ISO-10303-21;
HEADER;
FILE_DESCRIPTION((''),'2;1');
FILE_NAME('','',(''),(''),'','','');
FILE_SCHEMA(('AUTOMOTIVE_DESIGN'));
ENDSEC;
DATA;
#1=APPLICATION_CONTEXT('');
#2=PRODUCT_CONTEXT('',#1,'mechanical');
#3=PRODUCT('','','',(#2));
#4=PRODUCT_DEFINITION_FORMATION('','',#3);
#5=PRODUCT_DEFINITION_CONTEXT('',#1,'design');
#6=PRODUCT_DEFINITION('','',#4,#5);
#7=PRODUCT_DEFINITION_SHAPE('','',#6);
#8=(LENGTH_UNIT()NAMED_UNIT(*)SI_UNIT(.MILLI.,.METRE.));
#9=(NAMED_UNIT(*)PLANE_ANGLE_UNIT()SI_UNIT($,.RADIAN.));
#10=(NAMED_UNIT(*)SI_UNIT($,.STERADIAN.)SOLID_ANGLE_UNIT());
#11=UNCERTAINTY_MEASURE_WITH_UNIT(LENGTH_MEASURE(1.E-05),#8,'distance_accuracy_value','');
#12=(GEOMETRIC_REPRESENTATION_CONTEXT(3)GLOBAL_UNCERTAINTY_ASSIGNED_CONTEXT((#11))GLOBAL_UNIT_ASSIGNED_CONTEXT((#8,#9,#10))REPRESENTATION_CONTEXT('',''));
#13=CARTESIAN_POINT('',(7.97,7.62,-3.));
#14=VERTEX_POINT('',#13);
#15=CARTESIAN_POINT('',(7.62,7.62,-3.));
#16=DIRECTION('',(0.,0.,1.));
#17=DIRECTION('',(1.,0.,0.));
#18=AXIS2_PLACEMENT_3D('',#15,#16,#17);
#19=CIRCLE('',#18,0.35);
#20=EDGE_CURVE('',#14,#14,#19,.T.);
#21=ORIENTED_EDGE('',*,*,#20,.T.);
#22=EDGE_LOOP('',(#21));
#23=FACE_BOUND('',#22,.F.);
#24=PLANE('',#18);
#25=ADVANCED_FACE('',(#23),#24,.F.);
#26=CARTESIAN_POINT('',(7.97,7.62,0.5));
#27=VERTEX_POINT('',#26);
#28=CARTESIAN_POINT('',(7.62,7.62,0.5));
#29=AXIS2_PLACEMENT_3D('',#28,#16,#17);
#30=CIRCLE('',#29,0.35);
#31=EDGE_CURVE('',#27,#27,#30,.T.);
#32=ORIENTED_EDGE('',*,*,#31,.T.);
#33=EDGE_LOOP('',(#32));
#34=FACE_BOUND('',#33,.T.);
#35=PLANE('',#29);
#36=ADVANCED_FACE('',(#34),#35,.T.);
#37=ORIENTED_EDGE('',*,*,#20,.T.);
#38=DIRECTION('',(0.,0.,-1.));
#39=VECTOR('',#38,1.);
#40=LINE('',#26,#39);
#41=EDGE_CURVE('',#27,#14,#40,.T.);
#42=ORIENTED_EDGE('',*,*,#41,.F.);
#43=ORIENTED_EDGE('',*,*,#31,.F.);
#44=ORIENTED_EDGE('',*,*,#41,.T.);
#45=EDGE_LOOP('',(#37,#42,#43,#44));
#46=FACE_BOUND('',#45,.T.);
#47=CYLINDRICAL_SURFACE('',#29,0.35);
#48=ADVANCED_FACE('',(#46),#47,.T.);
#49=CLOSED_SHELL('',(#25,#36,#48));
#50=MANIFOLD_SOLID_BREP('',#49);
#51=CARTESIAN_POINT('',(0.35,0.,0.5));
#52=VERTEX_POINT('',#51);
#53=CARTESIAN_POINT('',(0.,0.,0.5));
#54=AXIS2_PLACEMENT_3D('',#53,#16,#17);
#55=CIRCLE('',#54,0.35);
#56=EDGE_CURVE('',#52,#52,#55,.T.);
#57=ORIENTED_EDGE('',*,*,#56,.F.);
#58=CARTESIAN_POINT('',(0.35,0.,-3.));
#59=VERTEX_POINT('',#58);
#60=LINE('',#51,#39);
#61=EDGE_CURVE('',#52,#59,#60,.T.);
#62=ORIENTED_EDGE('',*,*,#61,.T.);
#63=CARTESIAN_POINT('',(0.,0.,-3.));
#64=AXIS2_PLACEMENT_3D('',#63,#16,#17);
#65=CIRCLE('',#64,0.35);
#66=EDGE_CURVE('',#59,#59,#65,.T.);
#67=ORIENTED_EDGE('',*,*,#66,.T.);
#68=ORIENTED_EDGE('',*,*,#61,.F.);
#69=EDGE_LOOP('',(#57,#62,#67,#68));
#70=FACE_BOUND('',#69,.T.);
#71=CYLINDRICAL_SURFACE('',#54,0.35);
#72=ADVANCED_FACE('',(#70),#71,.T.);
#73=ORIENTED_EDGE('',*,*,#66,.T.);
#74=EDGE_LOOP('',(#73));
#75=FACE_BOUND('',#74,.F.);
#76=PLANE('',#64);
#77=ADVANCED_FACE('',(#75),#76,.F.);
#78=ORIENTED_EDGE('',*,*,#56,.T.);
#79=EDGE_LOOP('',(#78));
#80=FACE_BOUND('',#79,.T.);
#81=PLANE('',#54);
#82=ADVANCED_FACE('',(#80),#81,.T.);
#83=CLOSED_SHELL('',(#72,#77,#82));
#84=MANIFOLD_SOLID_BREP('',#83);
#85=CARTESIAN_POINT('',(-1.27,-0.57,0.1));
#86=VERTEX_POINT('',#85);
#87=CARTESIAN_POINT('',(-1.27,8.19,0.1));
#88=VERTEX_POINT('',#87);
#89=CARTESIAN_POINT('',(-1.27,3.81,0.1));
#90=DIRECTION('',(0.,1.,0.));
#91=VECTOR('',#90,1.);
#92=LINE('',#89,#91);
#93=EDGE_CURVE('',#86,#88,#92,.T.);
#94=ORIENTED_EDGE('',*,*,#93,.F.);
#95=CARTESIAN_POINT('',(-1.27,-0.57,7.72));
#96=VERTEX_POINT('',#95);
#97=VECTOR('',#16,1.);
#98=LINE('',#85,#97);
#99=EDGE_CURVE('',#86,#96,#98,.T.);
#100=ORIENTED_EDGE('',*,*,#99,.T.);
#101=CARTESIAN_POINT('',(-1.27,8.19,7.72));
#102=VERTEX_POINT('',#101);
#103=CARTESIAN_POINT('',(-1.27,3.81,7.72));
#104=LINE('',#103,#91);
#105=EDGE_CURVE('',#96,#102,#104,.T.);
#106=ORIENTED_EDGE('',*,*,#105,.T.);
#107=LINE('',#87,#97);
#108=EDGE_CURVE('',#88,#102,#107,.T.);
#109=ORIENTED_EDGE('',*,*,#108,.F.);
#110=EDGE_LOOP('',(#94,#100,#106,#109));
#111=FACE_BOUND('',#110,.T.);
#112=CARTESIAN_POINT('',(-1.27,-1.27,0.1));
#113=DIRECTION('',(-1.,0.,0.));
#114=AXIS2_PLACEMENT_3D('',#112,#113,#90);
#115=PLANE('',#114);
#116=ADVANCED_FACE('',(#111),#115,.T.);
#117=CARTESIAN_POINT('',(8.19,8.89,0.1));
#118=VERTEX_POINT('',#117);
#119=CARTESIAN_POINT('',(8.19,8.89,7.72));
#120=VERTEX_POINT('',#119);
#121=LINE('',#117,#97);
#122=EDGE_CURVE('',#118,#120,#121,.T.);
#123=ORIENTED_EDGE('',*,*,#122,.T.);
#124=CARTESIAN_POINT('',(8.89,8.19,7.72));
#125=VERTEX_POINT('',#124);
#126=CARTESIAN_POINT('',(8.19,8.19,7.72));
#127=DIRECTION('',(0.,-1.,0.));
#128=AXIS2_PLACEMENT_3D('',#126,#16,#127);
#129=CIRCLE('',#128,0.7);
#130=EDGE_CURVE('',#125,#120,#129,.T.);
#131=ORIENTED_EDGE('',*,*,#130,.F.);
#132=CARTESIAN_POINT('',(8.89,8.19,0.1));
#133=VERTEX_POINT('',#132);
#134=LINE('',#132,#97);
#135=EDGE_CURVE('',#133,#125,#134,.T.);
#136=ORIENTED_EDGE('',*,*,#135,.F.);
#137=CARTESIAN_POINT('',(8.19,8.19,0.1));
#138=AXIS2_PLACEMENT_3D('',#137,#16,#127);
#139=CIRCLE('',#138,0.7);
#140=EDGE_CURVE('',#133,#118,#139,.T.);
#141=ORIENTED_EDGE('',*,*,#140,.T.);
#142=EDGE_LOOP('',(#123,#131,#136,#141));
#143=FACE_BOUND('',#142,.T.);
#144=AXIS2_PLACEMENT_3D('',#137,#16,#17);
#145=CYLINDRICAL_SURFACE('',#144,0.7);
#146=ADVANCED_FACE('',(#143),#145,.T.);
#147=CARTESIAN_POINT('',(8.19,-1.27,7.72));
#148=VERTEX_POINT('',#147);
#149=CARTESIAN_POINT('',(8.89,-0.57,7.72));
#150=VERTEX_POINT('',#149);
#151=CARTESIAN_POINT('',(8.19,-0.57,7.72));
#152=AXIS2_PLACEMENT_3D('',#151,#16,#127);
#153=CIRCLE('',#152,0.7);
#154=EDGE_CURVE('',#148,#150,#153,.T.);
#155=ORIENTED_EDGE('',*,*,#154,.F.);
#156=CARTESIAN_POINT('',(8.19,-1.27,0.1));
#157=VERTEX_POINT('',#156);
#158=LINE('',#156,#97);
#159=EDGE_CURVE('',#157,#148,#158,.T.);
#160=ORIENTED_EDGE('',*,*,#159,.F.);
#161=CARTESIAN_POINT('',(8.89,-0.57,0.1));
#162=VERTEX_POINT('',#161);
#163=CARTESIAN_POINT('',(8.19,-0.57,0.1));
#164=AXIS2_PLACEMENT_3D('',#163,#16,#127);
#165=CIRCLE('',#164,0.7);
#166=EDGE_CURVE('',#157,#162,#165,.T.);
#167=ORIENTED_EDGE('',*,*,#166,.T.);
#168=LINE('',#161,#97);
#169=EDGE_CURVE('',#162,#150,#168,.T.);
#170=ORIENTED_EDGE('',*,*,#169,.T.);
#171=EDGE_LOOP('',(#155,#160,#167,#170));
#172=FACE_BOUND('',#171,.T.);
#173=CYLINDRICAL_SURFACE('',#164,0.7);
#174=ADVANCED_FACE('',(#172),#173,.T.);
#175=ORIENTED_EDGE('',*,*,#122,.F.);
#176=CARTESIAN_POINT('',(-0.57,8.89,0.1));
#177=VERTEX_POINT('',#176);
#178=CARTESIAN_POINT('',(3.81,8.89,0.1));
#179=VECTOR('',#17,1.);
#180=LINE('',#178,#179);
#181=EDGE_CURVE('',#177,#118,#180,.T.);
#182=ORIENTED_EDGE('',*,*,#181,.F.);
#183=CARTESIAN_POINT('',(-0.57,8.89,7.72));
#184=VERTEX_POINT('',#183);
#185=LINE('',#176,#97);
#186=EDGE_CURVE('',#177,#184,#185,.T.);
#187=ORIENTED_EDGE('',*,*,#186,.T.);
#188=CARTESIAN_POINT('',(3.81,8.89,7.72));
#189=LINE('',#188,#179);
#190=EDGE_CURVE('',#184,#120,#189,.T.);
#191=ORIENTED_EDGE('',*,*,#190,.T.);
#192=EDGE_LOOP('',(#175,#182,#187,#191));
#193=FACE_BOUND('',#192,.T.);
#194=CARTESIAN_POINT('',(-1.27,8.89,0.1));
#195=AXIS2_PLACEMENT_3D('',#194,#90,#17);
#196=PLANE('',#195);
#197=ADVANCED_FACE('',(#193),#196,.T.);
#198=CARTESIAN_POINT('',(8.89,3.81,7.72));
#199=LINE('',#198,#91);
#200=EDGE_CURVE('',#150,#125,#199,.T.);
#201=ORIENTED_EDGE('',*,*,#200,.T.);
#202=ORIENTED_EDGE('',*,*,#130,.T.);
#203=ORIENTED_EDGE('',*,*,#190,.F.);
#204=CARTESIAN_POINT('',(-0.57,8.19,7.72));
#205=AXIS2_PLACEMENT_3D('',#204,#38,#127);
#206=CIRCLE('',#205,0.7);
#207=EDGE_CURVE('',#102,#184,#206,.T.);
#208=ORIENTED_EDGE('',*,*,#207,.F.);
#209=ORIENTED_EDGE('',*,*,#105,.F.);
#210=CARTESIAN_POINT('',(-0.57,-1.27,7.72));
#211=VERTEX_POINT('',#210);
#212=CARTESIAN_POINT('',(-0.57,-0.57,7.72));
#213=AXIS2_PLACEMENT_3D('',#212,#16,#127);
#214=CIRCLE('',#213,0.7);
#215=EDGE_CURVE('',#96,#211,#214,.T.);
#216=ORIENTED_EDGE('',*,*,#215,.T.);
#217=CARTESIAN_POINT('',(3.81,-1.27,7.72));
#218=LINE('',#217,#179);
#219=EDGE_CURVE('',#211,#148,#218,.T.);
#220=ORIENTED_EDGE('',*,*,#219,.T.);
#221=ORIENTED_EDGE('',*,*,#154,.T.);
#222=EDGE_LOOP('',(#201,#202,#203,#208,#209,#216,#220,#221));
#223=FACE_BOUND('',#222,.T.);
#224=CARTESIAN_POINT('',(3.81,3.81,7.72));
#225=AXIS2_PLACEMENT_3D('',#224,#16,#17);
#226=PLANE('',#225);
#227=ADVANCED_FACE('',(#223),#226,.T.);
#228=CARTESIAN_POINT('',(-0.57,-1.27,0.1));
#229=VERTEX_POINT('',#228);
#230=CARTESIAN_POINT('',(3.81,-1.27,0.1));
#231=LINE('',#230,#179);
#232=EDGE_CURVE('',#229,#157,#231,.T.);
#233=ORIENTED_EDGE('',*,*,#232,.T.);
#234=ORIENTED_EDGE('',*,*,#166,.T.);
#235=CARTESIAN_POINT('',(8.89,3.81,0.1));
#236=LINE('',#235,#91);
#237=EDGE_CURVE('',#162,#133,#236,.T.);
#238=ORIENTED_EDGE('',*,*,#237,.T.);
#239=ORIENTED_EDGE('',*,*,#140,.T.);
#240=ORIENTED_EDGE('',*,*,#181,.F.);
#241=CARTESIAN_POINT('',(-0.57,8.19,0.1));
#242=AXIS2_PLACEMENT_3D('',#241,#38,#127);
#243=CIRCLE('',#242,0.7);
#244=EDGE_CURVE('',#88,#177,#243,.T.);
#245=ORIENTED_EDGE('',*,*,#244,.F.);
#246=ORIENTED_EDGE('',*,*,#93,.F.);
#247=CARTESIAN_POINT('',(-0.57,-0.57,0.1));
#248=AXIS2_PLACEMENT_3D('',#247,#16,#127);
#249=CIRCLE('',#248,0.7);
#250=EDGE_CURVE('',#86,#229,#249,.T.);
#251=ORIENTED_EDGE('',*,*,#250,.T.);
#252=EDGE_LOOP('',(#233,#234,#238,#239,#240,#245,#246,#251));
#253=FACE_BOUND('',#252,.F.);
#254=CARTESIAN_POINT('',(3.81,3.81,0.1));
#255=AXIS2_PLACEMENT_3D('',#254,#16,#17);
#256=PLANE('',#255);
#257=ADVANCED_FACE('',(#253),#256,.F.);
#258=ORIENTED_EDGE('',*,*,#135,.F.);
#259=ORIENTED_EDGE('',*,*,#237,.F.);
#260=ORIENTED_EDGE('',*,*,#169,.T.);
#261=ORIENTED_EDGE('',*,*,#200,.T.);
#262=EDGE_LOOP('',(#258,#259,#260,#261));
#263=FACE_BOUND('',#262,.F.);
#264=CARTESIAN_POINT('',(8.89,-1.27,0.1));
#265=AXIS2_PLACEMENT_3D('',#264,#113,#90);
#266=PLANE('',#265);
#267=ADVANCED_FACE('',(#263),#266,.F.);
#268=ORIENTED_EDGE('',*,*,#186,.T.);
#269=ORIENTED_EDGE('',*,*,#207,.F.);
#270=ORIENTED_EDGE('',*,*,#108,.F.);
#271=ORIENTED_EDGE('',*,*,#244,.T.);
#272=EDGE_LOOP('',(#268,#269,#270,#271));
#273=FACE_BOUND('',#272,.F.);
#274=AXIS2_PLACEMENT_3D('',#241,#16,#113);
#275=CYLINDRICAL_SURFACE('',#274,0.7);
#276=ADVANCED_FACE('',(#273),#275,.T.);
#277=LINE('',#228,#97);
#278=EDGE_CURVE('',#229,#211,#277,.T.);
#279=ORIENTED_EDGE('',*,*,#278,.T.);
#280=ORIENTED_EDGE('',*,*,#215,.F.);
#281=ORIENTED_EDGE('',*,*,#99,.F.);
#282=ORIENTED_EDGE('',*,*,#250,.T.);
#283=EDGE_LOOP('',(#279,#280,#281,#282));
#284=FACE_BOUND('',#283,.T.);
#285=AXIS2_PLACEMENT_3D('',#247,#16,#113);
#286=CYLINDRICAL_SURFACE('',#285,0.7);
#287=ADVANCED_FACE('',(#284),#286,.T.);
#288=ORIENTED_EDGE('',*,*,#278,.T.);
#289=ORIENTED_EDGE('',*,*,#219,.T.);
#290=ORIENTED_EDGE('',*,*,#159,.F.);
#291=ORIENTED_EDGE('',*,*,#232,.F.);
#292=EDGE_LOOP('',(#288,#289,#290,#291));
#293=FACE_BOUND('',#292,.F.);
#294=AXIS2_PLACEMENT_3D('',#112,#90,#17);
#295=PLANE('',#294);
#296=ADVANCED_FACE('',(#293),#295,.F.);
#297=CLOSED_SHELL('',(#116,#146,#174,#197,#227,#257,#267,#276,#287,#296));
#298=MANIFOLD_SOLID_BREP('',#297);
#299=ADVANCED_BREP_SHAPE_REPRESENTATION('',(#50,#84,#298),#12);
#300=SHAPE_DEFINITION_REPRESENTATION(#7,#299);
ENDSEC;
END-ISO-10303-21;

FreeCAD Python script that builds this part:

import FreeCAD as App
import Part
import Sketcher
from FreeCAD import Vector
Q = App.Units.Quantity


def edges_at(feature, points):
    """Names of the edges that pass closest to the given points."""
    edges = feature.Shape.Edges
    near = lambda p: min(range(len(edges)), key=lambda i: edges[i].distToShape(Part.Vertex(*p))[0])
    return sorted({f"Edge{near(p) + 1}" for p in points})

doc = App.newDocument("Part")
body = doc.addObject("PartDesign::Body", "Body")
body.AllowCompound = True

sketch1 = doc.addObject("Sketcher::SketchObject", "Sketch")
body.addObject(sketch1)
sketch1.AttachmentSupport = (doc.XY_Plane, [""])
sketch1.MapMode = "FlatFace"
sketch1.AttachmentOffset = App.Placement(Vector(0, 0, 0.5), App.Rotation())
sketch1.addGeometry([
    Part.Circle(Vector(0, 0, 0), Vector(0, 0, 1), 0.35),
    Part.Circle(Vector(7.62, 7.62, 0), Vector(0, 0, 1), 0.35),
], False)
sketch1.addConstraint([
    Sketcher.Constraint("Coincident", 0, 3, -1, 1),
    Sketcher.Constraint("Equal", 0, 1),
    Sketcher.Constraint("Diameter", 0, Q("0.7 mm")),
    Sketcher.Constraint("DistanceX", -1, 1, 1, 3, Q("7.62 mm")),
    Sketcher.Constraint("DistanceY", -1, 1, 1, 3, Q("7.62 mm")),
])
pad1 = doc.addObject("PartDesign::Pad", "Pad")
body.addObject(pad1)
pad1.Profile = sketch1
pad1.Length = 3.5
pad1.Reversed = True
body2 = doc.addObject("PartDesign::Body", "Body001")

sketch2 = doc.addObject("Sketcher::SketchObject", "Sketch001")
body2.addObject(sketch2)
sketch2.AttachmentSupport = (doc.getObject("XY_Plane001"), [""])
sketch2.MapMode = "FlatFace"
sketch2.AttachmentOffset = App.Placement(Vector(0, 0, 0.1), App.Rotation())
sketch2.addGeometry([
    Part.LineSegment(Vector(-1, 9, 0), Vector(-1, -1, 0)),
    Part.LineSegment(Vector(-1, -1, 0), Vector(9, -1, 0)),
    Part.LineSegment(Vector(9, -1, 0), Vector(9, 9, 0)),
    Part.LineSegment(Vector(9, 9, 0), Vector(-1, 9, 0)),
], False)
sketch2.addConstraint([
    Sketcher.Constraint("Coincident", 0, 2, 1, 1),
    Sketcher.Constraint("Coincident", 1, 2, 2, 1),
    Sketcher.Constraint("Coincident", 2, 2, 3, 1),
    Sketcher.Constraint("Coincident", 3, 2, 0, 1),
    Sketcher.Constraint("Vertical", 0),
    Sketcher.Constraint("Horizontal", 1),
    Sketcher.Constraint("Vertical", 2),
    Sketcher.Constraint("Horizontal", 3),
    Sketcher.Constraint("Equal", 3, 0),
    Sketcher.Constraint("DistanceX", 1, 1, 1, 2, Q("10.16 mm")),
    Sketcher.Constraint("DistanceX", 0, 2, -1, 1, Q("1.27 mm")),
    Sketcher.Constraint("DistanceY", 0, 2, -1, 1, Q("1.27 mm")),
])
pad2 = doc.addObject("PartDesign::Pad", "Pad001")
body2.addObject(pad2)
pad2.Profile = sketch2
pad2.Length = 7.62
doc.recompute()

fillet = doc.addObject("PartDesign::Fillet", "Fillet")
body2.addObject(fillet)
fillet.Base = (pad2, edges_at(pad2, [
    (8.89, -1.27, 3.91),
    (8.89, 8.89, 3.91),
    (-1.27, -1.27, 3.91),
    (-1.27, 8.89, 3.91),
]))
fillet.Radius = 0.7

doc.recompute()
